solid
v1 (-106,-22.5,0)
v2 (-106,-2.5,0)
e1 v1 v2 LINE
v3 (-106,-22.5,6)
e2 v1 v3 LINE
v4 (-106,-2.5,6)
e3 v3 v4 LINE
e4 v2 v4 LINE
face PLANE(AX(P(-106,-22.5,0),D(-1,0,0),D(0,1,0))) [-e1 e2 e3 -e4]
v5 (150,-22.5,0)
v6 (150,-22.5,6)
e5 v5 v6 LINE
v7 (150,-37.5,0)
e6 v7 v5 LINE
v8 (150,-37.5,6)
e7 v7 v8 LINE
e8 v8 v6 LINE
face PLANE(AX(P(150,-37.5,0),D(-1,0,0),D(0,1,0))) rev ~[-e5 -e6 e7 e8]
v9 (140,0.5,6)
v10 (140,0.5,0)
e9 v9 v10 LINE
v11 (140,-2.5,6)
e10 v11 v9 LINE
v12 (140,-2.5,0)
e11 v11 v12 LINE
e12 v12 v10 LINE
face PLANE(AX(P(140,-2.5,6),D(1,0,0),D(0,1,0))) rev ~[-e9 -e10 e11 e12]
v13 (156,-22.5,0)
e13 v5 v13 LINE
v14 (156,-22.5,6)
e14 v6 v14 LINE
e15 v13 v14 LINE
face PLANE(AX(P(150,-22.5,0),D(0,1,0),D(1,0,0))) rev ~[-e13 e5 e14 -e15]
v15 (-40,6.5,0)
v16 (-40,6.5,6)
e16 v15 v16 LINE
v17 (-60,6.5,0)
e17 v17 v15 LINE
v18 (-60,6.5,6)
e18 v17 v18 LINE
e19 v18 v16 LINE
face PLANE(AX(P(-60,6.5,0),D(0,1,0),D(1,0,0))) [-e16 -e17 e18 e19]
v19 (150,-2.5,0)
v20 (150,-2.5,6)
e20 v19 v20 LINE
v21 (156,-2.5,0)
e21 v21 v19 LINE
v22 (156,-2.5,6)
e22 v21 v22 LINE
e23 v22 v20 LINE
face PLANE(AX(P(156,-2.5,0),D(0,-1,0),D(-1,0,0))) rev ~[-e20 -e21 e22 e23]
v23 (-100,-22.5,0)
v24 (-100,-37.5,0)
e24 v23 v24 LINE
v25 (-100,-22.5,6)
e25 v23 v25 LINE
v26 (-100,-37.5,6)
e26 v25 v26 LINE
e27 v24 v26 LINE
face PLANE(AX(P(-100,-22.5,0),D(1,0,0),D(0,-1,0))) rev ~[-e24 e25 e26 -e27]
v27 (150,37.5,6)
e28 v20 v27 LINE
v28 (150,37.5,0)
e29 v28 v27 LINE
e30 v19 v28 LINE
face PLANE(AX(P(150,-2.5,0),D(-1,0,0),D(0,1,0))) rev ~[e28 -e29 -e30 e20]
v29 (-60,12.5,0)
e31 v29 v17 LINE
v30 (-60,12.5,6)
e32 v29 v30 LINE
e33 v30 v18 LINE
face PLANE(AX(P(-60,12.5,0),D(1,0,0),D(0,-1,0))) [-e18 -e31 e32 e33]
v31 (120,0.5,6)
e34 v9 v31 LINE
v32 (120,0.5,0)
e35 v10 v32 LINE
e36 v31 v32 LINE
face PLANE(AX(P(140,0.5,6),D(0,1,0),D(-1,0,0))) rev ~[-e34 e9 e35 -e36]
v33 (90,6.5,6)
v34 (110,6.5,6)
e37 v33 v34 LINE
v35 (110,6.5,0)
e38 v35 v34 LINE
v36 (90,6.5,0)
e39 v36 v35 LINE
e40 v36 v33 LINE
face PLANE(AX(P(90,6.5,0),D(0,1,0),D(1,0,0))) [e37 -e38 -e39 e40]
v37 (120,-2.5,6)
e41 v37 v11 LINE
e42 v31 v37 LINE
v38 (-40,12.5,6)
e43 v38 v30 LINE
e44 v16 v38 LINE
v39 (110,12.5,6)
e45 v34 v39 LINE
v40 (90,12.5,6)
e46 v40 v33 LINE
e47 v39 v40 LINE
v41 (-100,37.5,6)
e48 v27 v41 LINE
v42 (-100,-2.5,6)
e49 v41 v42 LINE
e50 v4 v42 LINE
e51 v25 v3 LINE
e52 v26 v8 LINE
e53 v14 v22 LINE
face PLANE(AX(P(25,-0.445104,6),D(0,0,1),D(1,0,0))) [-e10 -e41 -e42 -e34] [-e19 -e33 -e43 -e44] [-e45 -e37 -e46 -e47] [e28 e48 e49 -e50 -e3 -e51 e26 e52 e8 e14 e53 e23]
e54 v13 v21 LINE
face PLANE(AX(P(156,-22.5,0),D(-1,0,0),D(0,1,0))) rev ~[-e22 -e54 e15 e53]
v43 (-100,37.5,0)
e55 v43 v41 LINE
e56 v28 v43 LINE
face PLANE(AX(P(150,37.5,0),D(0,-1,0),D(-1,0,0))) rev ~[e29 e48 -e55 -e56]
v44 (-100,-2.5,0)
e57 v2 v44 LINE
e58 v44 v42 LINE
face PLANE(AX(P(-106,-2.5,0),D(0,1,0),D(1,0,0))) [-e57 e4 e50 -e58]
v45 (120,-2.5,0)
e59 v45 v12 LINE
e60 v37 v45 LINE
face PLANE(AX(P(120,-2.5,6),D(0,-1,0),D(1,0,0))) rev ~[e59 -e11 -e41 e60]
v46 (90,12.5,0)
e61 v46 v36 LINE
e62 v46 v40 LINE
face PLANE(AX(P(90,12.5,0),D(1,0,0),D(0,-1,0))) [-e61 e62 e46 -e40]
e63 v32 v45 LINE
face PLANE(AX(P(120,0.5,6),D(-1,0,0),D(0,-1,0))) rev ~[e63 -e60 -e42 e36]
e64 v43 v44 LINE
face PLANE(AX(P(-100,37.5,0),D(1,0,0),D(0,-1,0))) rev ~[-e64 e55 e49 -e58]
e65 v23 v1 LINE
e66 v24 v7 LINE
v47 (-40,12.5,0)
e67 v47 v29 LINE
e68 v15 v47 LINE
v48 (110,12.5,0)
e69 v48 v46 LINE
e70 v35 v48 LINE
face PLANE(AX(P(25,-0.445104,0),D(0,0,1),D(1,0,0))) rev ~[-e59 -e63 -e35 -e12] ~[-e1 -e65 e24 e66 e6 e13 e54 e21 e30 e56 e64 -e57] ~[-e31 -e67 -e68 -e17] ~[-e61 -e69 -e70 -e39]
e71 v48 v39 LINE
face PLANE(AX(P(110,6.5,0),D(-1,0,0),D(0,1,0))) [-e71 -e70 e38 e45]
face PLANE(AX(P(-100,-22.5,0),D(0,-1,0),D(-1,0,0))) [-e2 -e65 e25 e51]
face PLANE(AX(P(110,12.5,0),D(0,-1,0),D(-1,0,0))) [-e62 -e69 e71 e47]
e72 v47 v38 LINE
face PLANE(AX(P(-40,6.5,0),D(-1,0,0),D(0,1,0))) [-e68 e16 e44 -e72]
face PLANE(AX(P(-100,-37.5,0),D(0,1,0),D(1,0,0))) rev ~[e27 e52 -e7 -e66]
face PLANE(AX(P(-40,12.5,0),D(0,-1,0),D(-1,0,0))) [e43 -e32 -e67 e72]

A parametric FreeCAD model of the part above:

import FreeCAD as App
import Part
import Sketcher

V = App.Vector


def add_polygon(sketch, points):
    """Adds a closed chain of lines whose ends are joined by coincident constraints."""
    first, n = sketch.GeometryCount, len(points)
    for a, b in zip(points, points[1:] + points[:1]):
        sketch.addGeometry(Part.LineSegment(App.Vector(*a, 0), App.Vector(*b, 0)), False)
    for i in range(n):
        sketch.addConstraint(Sketcher.Constraint("Coincident", first + i, 2, first + (i + 1) % n, 1))

doc = App.newDocument("Part")
body = doc.addObject("PartDesign::Body", "Body")

sketch1 = doc.addObject("Sketcher::SketchObject", "Sketch")
body.addObject(sketch1)
sketch1.AttachmentSupport = (doc.XY_Plane, [""])
sketch1.MapMode = "FlatFace"
add_polygon(sketch1, [(-100, -38), (150, -38), (150, -22), (156, -22), (156, -2), (150, -2), (150, 38), (-100, 38), (-100, -2), (-106, -2), (-106, -22), (-100, -22)])
add_polygon(sketch1, [(-40, 6), (-60, 6), (-60, 12), (-40, 12)])
add_polygon(sketch1, [(110, 6), (90, 6), (90, 12), (110, 12)])
sketch1.addConstraint([
    Sketcher.Constraint("Horizontal", 0),
    Sketcher.Constraint("Vertical", 1),
    Sketcher.Constraint("Horizontal", 2),
    Sketcher.Constraint("Vertical", 3),
    Sketcher.Constraint("Horizontal", 4),
    Sketcher.Constraint("Vertical", 5),
    Sketcher.Constraint("Horizontal", 6),
    Sketcher.Constraint("Vertical", 7),
    Sketcher.Constraint("Horizontal", 8),
    Sketcher.Constraint("Vertical", 9),
    Sketcher.Constraint("Horizontal", 10),
    Sketcher.Constraint("Vertical", 11),
    Sketcher.Constraint("Horizontal", 12),
    Sketcher.Constraint("Vertical", 13),
    Sketcher.Constraint("Horizontal", 14),
    Sketcher.Constraint("Vertical", 15),
    Sketcher.Constraint("Horizontal", 16),
    Sketcher.Constraint("Vertical", 17),
    Sketcher.Constraint("Horizontal", 18),
    Sketcher.Constraint("Vertical", 19),
    Sketcher.Constraint("Symmetric", 0, 2, 5, 2, -1),
    Sketcher.Constraint("Horizontal", 4, 2, 7, 2),
    Sketcher.Constraint("Horizontal", 2, 2, 9, 2),
    Sketcher.Constraint("Horizontal", 15, 2, 16, 2),
    Sketcher.Constraint("Horizontal", 14, 2, 17, 2),
    Sketcher.Constraint("Vertical", 7, 2, 10, 2),
    Sketcher.Constraint("Equal", 4, 8),
    Sketcher.Constraint("Equal", 14, 16),
    Sketcher.Constraint("Equal", 18, 3),
    Sketcher.Constraint("Equal", 10, 13),
    Sketcher.Constraint("DistanceY", 5, 1, 5, 2, 40.0),
    Sketcher.Constraint("DistanceX", -1, 1, 0, 2, 150.0),
    Sketcher.Constraint("DistanceX", -1, 1, 2, 2, 156.0),
    Sketcher.Constraint("DistanceX", 6, 2, -1, 1, 100.0),
    Sketcher.Constraint("DistanceX", 14, 2, -1, 1, 40.0),
    Sketcher.Constraint("DistanceX", -1, 1, 18, 2, 110.0),
    Sketcher.Constraint("DistanceX", 7, 2, 12, 2, 40.0),
    Sketcher.Constraint("DistanceY", 1, 1, 1, 2, 15.0),
    Sketcher.Constraint("DistanceY", 7, 2, 12, 2, 9.0),
])
pad1 = doc.addObject("PartDesign::Pad", "Pad")
body.addObject(pad1)
pad1.Profile = sketch1
pad1.Length = 6

sketch2 = doc.addObject("Sketcher::SketchObject", "Sketch001")
body.addObject(sketch2)
sketch2.AttachmentSupport = (doc.XY_Plane, [""])
sketch2.MapMode = "FlatFace"
sketch2.AttachmentOffset = App.Placement(V(0, 0, 6), App.Rotation())
add_polygon(sketch2, [(120, 0.5), (120, -2.5), (140, -2.5), (140, 0.5)])
sketch2.addConstraint([
    Sketcher.Constraint("Vertical", 0),
    Sketcher.Constraint("Horizontal", 1),
    Sketcher.Constraint("Vertical", 2),
    Sketcher.Constraint("Horizontal", 3),
    Sketcher.Constraint("DistanceX", 1, 1, 1, 2, 20.0),
    Sketcher.Constraint("DistanceY", 0, 2, 0, 1, 3.0),
    Sketcher.Constraint("DistanceX", -1, 1, 0, 2, 120.0),
    Sketcher.Constraint("DistanceY", 0, 2, -1, 1, 2.5),
])
pocket1 = doc.addObject("PartDesign::Pocket", "Pocket")
body.addObject(pocket1)
pocket1.Profile = sketch2
pocket1.Type = "ThroughAll"

doc.recompute()
